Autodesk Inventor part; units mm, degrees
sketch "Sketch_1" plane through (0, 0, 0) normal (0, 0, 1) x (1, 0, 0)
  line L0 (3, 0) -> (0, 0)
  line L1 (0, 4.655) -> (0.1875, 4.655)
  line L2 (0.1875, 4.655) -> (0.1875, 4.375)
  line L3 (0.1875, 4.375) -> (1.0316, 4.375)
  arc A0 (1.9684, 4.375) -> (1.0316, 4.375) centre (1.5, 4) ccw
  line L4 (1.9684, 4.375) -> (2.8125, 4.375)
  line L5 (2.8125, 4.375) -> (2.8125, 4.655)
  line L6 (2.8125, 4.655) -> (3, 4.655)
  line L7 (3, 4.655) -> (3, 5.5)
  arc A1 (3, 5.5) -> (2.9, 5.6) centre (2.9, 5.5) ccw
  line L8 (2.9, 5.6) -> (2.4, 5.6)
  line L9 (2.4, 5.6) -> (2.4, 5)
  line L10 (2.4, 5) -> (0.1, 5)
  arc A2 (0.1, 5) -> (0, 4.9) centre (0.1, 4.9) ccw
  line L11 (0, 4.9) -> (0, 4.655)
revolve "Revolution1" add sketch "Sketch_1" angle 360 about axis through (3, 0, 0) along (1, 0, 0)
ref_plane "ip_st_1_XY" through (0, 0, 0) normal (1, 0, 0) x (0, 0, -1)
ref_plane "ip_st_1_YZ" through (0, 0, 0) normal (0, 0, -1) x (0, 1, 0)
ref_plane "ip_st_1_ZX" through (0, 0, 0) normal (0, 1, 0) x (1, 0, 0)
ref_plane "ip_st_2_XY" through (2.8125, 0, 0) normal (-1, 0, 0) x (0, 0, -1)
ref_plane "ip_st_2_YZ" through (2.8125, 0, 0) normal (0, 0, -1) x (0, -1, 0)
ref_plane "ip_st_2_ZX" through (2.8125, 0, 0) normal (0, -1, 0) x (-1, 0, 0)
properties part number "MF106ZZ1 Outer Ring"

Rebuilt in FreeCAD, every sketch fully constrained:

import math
import FreeCAD as App
import Part
import Sketcher

V = App.Vector

doc = App.newDocument("Part")
body = doc.addObject("PartDesign::Body", "Body")

sketch1 = body.newObject("Sketcher::SketchObject", "Sketch")
sketch1.AttachmentSupport = (doc.getObject("XY_Plane"), [""])
sketch1.MapMode = "FlatFace"
sketch1.addGeometry(Part.LineSegment(V(0, 4.9, 0), V(0, 4.655, 0)), False)
sketch1.addGeometry(Part.LineSegment(V(0, 4.655, 0), V(0.1875, 4.655, 0)), False)
sketch1.addGeometry(Part.LineSegment(V(0.1875, 4.655, 0), V(0.1875, 4.375, 0)), False)
sketch1.addGeometry(Part.LineSegment(V(0.1875, 4.375, 0), V(1.0316, 4.375, 0)), False)
sketch1.addGeometry(Part.ArcOfCircle(Part.Circle(V(1.5, 4, 0), V(0, 0, 1), 0.60002), math.radians(38.680686), math.radians(141.319314)), False)
sketch1.addGeometry(Part.LineSegment(V(1.9684, 4.375, 0), V(2.8125, 4.375, 0)), False)
sketch1.addGeometry(Part.LineSegment(V(2.8125, 4.375, 0), V(2.8125, 4.655, 0)), False)
sketch1.addGeometry(Part.LineSegment(V(2.8125, 4.655, 0), V(3, 4.655, 0)), False)
sketch1.addGeometry(Part.LineSegment(V(3, 4.655, 0), V(3, 5.5, 0)), False)
sketch1.addGeometry(Part.ArcOfCircle(Part.Circle(V(2.9, 5.5, 0), V(0, 0, 1), 0.1), math.radians(0), math.radians(90)), False)
sketch1.addGeometry(Part.LineSegment(V(2.9, 5.6, 0), V(2.4, 5.6, 0)), False)
sketch1.addGeometry(Part.LineSegment(V(2.4, 5.6, 0), V(2.4, 5, 0)), False)
sketch1.addGeometry(Part.LineSegment(V(2.4, 5, 0), V(0.1, 5, 0)), False)
sketch1.addGeometry(Part.ArcOfCircle(Part.Circle(V(0.1, 4.9, 0), V(0, 0, 1), 0.1), math.radians(90), math.radians(180)), False)
sketch1.addConstraint(Sketcher.Constraint("Coincident", 0, 2, 1, 1))
sketch1.addConstraint(Sketcher.Constraint("Coincident", 1, 2, 2, 1))
sketch1.addConstraint(Sketcher.Constraint("Coincident", 2, 2, 3, 1))
sketch1.addConstraint(Sketcher.Constraint("Coincident", 3, 2, 4, 2))
sketch1.addConstraint(Sketcher.Constraint("Coincident", 4, 1, 5, 1))
sketch1.addConstraint(Sketcher.Constraint("Coincident", 5, 2, 6, 1))
sketch1.addConstraint(Sketcher.Constraint("Coincident", 6, 2, 7, 1))
sketch1.addConstraint(Sketcher.Constraint("Coincident", 7, 2, 8, 1))
sketch1.addConstraint(Sketcher.Constraint("Tangent", 8, 2, 9, 1))
sketch1.addConstraint(Sketcher.Constraint("Tangent", 9, 2, 10, 1))
sketch1.addConstraint(Sketcher.Constraint("Coincident", 10, 2, 11, 1))
sketch1.addConstraint(Sketcher.Constraint("Coincident", 11, 2, 12, 1))
sketch1.addConstraint(Sketcher.Constraint("Tangent", 12, 2, 13, 1))
sketch1.addConstraint(Sketcher.Constraint("Tangent", 13, 2, 0, 1))
sketch1.addConstraint(Sketcher.Constraint("Vertical", 0))
sketch1.addConstraint(Sketcher.Constraint("Horizontal", 1))
sketch1.addConstraint(Sketcher.Constraint("Vertical", 2))
sketch1.addConstraint(Sketcher.Constraint("Horizontal", 3))
sketch1.addConstraint(Sketcher.Constraint("Horizontal", 5))
sketch1.addConstraint(Sketcher.Constraint("Vertical", 6))
sketch1.addConstraint(Sketcher.Constraint("Horizontal", 7))
sketch1.addConstraint(Sketcher.Constraint("Vertical", 8))
sketch1.addConstraint(Sketcher.Constraint("Horizontal", 10))
sketch1.addConstraint(Sketcher.Constraint("Vertical", 11))
sketch1.addConstraint(Sketcher.Constraint("Horizontal", 12))
sketch1.addConstraint(Sketcher.Constraint("Equal", 9, 13))
sketch1.addConstraint(Sketcher.Constraint("PointOnObject", 0, 2, -2))
sketch1.addConstraint(Sketcher.Constraint("Horizontal", 3, 2, 4, 1))
sketch1.addConstraint(Sketcher.Constraint("Horizontal", 1, 2, 6, 2))
sketch1.addConstraint(Sketcher.Constraint("Equal", 3, 5))
sketch1.addConstraint(Sketcher.Constraint("Equal", 1, 7))
sketch1.addConstraint(Sketcher.Constraint("Radius", 4, 0.6))
sketch1.addConstraint(Sketcher.Constraint("Radius", 9, 0.1))
sketch1.addConstraint(Sketcher.Constraint("DistanceX", 10, 2, 10, 1, 0.5))
sketch1.addConstraint(Sketcher.Constraint("DistanceX", 12, 2, 12, 1, 2.3))
sketch1.addConstraint(Sketcher.Constraint("DistanceY", 11, 2, 11, 1, 0.6))
sketch1.addConstraint(Sketcher.Constraint("DistanceY", -1, 1, 4, 3, 4.0))
sketch1.addConstraint(Sketcher.Constraint("DistanceY", -1, 1, 11, 2, 5.0))
sketch1.addConstraint(Sketcher.Constraint("DistanceY", 2, 2, 2, 1, 0.28))
sketch1.addConstraint(Sketcher.Constraint("DistanceX", 3, 1, 3, 2, 0.844))
sketch1.addConstraint(Sketcher.Constraint("DistanceY", 0, 2, 0, 1, 0.245))
revolution = body.newObject("PartDesign::Revolution", "Revolution")
revolution.Profile = sketch1
revolution.ReferenceAxis = (sketch1, ["H_Axis"])
revolution.Angle = 360

doc.recompute()
